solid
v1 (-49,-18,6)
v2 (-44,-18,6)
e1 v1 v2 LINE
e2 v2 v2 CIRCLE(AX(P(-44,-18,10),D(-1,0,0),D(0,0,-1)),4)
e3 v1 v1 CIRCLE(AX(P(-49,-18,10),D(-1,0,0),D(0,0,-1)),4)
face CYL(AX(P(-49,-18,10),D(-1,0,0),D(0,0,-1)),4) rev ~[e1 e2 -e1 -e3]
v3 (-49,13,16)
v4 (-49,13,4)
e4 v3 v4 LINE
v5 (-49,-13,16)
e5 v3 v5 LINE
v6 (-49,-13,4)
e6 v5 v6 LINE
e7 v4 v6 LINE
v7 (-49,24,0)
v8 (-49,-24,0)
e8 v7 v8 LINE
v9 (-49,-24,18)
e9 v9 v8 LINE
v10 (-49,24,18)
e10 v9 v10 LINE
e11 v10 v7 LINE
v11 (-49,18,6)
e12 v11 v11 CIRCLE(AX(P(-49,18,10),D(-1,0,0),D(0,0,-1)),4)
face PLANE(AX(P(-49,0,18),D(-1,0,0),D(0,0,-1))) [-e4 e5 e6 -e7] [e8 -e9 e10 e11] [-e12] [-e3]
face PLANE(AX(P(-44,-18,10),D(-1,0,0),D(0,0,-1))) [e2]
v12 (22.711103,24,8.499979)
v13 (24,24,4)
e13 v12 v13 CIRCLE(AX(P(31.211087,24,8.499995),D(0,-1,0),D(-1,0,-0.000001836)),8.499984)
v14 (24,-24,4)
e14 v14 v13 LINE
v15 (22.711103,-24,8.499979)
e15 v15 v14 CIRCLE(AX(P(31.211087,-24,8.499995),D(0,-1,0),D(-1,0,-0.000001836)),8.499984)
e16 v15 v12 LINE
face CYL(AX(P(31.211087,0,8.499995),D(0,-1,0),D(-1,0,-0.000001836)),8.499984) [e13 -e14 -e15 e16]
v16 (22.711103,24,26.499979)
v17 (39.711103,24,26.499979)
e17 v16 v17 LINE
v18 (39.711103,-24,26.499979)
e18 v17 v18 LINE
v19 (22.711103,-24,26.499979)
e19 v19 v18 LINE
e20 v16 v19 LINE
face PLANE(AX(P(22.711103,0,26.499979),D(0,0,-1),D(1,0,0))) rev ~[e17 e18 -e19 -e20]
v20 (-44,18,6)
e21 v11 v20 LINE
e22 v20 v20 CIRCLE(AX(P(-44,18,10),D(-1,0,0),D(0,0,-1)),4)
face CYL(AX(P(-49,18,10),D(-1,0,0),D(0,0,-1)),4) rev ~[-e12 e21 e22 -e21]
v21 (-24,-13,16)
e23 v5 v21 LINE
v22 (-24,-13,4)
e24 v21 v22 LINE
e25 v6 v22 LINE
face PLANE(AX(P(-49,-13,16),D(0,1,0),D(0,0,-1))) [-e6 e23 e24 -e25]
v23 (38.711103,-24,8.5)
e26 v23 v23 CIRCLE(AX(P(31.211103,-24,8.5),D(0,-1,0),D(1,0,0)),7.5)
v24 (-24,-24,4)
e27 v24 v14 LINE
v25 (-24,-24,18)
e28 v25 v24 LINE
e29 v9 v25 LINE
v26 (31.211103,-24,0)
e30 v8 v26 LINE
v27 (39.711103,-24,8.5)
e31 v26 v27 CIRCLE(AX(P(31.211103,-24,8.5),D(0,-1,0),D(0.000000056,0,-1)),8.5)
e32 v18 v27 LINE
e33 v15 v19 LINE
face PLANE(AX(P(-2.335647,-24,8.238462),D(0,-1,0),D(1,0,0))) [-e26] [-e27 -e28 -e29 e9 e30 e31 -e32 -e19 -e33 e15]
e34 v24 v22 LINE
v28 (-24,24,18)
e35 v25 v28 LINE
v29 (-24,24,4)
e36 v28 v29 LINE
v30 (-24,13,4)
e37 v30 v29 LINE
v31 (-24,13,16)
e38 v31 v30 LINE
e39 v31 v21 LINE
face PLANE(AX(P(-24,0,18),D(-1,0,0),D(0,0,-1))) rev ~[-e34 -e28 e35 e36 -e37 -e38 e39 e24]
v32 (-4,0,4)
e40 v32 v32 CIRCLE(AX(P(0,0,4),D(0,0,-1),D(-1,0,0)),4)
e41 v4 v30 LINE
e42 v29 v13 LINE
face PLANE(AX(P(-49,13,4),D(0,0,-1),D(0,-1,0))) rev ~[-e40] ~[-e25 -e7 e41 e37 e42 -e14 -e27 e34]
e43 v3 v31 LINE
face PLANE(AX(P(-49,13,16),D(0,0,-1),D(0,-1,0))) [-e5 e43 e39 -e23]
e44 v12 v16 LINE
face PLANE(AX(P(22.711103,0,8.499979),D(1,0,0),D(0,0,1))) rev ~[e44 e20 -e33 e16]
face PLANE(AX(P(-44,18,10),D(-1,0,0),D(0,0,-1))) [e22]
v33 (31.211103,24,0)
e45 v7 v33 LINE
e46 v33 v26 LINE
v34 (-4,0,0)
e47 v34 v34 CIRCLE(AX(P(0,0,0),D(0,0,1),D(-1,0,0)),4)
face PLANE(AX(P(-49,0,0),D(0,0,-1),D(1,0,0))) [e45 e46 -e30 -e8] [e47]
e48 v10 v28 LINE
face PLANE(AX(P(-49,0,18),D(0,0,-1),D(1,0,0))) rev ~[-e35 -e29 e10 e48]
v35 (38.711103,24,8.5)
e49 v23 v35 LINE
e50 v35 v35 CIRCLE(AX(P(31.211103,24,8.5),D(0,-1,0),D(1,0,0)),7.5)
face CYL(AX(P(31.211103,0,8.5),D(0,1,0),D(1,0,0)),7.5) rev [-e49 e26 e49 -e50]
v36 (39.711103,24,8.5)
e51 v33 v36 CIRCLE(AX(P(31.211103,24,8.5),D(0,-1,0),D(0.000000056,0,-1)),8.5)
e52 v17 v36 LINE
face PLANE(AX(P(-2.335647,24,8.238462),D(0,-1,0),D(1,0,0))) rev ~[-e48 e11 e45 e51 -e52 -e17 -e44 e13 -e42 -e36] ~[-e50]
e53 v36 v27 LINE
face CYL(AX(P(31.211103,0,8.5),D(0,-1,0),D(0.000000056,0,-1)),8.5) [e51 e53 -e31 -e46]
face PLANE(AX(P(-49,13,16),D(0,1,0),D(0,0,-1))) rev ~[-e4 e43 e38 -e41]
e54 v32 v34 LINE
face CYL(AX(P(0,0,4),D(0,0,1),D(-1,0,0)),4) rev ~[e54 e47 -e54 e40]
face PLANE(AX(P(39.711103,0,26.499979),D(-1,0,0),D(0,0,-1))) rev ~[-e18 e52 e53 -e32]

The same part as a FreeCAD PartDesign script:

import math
import FreeCAD as App
import Part
import Sketcher

V = App.Vector

doc = App.newDocument("Part")
body = doc.addObject("PartDesign::Body", "Body")

# Sketch on XZ plane
sketch1 = body.newObject("Sketcher::SketchObject", "Sketch")
sketch1.AttachmentSupport = (doc.getObject("XZ_Plane"), [""])
sketch1.MapMode = "FlatFace"
sketch1.addGeometry([
    Part.LineSegment(V(-49, 18, 0), V(-49, 0, 0)),  # 0
    Part.LineSegment(V(-49, 0, 0), V(31.211103, 0, 0)),  # 1
    Part.ArcOfCircle(Part.Circle(V(31.211103, 8.5, 0), V(0, 0, 1), 8.5), math.radians(-89.999997), math.radians(-0.000003)),  # 2
    Part.LineSegment(V(39.711103, 8.5, 0), V(39.711103, 26.499979, 0)),  # 3
    Part.LineSegment(V(39.711103, 26.499979, 0), V(22.711103, 26.499979, 0)),  # 4
    Part.LineSegment(V(22.711103, 26.499979, 0), V(22.711103, 8.499979, 0)),  # 5
    Part.ArcOfCircle(Part.Circle(V(31.211087, 8.499995, 0), V(0, 0, 1), 8.499984), math.radians(-179.999895), math.radians(-148.034255)),  # 6
    Part.LineSegment(V(24, 4, 0), V(-24, 4, 0)),  # 7
    Part.LineSegment(V(-24, 4, 0), V(-24, 18, 0)),  # 8
    Part.LineSegment(V(-24, 18, 0), V(-49, 18, 0)),  # 9
    Part.Circle(V(31.211103, 8.5, 0), V(0, 0, 1), 7.5),  # 10
], False)
sketch1.addConstraint([
    Sketcher.Constraint("Coincident", 0, 2, 1, 1),
    Sketcher.Constraint("Tangent", 1, 2, 2, 1),
    Sketcher.Constraint("Tangent", 2, 2, 3, 1),
    Sketcher.Constraint("Coincident", 3, 2, 4, 1),
    Sketcher.Constraint("Coincident", 4, 2, 5, 1),
    Sketcher.Constraint("Tangent", 5, 2, 6, 1),
    Sketcher.Constraint("Coincident", 6, 2, 7, 1),
    Sketcher.Constraint("Coincident", 7, 2, 8, 1),
    Sketcher.Constraint("Coincident", 8, 2, 9, 1),
    Sketcher.Constraint("Coincident", 9, 2, 0, 1),
    Sketcher.Constraint("Vertical", 0),
    Sketcher.Constraint("Horizontal", 1),
    Sketcher.Constraint("Vertical", 3),
    Sketcher.Constraint("Horizontal", 4),
    Sketcher.Constraint("Vertical", 5),
    Sketcher.Constraint("Horizontal", 7),
    Sketcher.Constraint("Vertical", 8),
    Sketcher.Constraint("Horizontal", 9),
    Sketcher.Constraint("Coincident", 10, 3, 2, 3),
    Sketcher.Constraint("PointOnObject", 0, 2, -1),
    Sketcher.Constraint("Equal", 0, 5),
    Sketcher.Constraint("Diameter", 10, 15.0),
    Sketcher.Constraint("Radius", 2, 8.5),
    Sketcher.Constraint("DistanceX", 4, 2, 4, 1, 17.0),
    Sketcher.Constraint("DistanceX", 7, 2, 7, 1, 48.0),
    Sketcher.Constraint("DistanceX", 9, 2, 9, 1, 25.0),
    Sketcher.Constraint("DistanceY", 0, 2, 0, 1, 18.0),
    Sketcher.Constraint("DistanceY", 8, 1, 8, 2, 14.0),
    Sketcher.Constraint("DistanceX", 0, 2, -1, 1, 49.0),
    Sketcher.Constraint("Radius", 6, 8.499984),
    Sketcher.Constraint("DistanceY", 3, 1, 3, 2, 17.999979),
])
pad1 = body.newObject("PartDesign::Pad", "Pad")
pad1.Profile = sketch1
pad1.Length = 48
pad1.Midplane = True

# Sketch on XY plane
sketch2 = body.newObject("Sketcher::SketchObject", "Sketch001")
sketch2.AttachmentSupport = (doc.getObject("XY_Plane"), [""])
sketch2.MapMode = "FlatFace"
sketch2.AttachmentOffset = App.Placement(V(0, 0, 4), App.Rotation())
sketch2.addGeometry(Part.Circle(V(0, 0, 0), V(0, 0, 1), 4), False)
sketch2.addConstraint([
    Sketcher.Constraint("Coincident", 0, 3, -1, 1),
    Sketcher.Constraint("Diameter", 0, 8.0),
])
pocket1 = body.newObject("PartDesign::Pocket", "Pocket")
pocket1.Profile = sketch2
pocket1.Length = 5
doc.recompute()

polarpattern = body.newObject("PartDesign::PolarPattern", "PolarPattern")
polarpattern.Originals = [pocket1]
polarpattern.Axis = (doc.getObject("Z_Axis"), [""])
polarpattern.Angle = 360
polarpattern.Occurrences = 2
body.Tip = polarpattern

# Sketch on YZ plane
sketch3 = body.newObject("Sketcher::SketchObject", "Sketch002")
sketch3.AttachmentSupport = (doc.getObject("YZ_Plane"), [""])
sketch3.MapMode = "FlatFace"
sketch3.AttachmentOffset = App.Placement(V(0, 0, -49), App.Rotation())
sketch3.addGeometry([
    Part.LineSegment(V(-13, 16, 0), V(13, 16, 0)),
    Part.LineSegment(V(13, 16, 0), V(13, 4, 0)),
    Part.LineSegment(V(13, 4, 0), V(-13, 4, 0)),
    Part.LineSegment(V(-13, 4, 0), V(-13, 16, 0)),
], False)
sketch3.addConstraint([
    Sketcher.Constraint("Coincident", 0, 2, 1, 1),
    Sketcher.Constraint("Coincident", 1, 2, 2, 1),
    Sketcher.Constraint("Coincident", 2, 2, 3, 1),
    Sketcher.Constraint("Coincident", 3, 2, 0, 1),
    Sketcher.Constraint("Horizontal", 0),
    Sketcher.Constraint("Vertical", 1),
    Sketcher.Constraint("Horizontal", 2),
    Sketcher.Constraint("Vertical", 3),
    Sketcher.Constraint("DistanceX", 0, 1, 0, 2, 26.0),
    Sketcher.Constraint("DistanceY", 1, 2, 1, 1, 12.0),
    Sketcher.Constraint("DistanceX", -1, 1, 0, 2, 13.0),
    Sketcher.Constraint("DistanceY", -1, 1, 0, 2, 16.0),
])
pocket2 = body.newObject("PartDesign::Pocket", "Pocket001")
pocket2.Profile = sketch3
pocket2.Length = 25
pocket2.Reversed = True

# Sketch on YZ plane
sketch4 = body.newObject("Sketcher::SketchObject", "Sketch003")
sketch4.AttachmentSupport = (doc.getObject("YZ_Plane"), [""])
sketch4.MapMode = "FlatFace"
sketch4.AttachmentOffset = App.Placement(V(0, 0, -49), App.Rotation())
sketch4.addGeometry([
    Part.Circle(V(18, 10, 0), V(0, 0, 1), 4),
    Part.Circle(V(-18, 10, 0), V(0, 0, 1), 4),
], False)
sketch4.addConstraint([
    Sketcher.Constraint("Equal", 0, 1),
    Sketcher.Constraint("Symmetric", 0, 3, 1, 3, -2),
    Sketcher.Constraint("Diameter", 0, 8.0),
    Sketcher.Constraint("DistanceX", -1, 1, 0, 3, 18.0),
    Sketcher.Constraint("DistanceY", -1, 1, 0, 3, 10.0),
])
pocket3 = body.newObject("PartDesign::Pocket", "Pocket002")
pocket3.Profile = sketch4
pocket3.Length = 5
pocket3.Reversed = True

doc.recompute()
